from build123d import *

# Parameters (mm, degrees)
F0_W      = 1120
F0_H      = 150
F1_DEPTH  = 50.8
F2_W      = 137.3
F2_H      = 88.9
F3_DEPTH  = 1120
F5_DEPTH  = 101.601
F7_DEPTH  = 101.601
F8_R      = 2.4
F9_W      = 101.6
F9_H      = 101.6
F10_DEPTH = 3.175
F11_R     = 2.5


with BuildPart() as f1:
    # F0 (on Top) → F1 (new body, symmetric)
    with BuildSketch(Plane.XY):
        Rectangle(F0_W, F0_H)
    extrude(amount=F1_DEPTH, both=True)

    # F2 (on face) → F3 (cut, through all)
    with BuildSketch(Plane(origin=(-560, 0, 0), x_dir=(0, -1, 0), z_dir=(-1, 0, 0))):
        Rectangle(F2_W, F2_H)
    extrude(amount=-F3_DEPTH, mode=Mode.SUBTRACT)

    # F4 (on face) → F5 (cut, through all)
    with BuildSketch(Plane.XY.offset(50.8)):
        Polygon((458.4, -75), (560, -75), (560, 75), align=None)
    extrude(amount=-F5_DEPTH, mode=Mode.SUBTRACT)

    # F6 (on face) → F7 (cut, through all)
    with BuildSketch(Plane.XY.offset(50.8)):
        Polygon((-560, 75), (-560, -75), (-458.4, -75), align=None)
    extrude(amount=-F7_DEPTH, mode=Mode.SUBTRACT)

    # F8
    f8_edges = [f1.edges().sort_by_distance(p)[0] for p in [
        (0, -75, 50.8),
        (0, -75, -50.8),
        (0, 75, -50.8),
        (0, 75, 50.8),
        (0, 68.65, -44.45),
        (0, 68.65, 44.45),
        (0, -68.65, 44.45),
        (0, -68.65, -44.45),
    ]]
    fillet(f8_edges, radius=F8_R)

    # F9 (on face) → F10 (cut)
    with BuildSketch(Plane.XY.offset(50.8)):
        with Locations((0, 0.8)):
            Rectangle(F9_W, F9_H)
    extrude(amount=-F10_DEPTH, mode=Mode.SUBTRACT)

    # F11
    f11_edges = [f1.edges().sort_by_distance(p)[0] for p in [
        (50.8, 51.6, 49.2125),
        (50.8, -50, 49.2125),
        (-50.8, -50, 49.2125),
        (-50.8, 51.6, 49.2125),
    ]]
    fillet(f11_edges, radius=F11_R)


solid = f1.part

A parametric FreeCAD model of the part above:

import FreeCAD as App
import Part
import Sketcher
Q = App.Units.Quantity


def edges_at(feature, points):
    """Names of the edges that pass closest to the given points."""
    edges = feature.Shape.Edges
    near = lambda p: min(range(len(edges)), key=lambda i: edges[i].distToShape(Part.Vertex(*p))[0])
    return sorted({f"Edge{near(p) + 1}" for p in points})

doc = App.newDocument("Part")
params = doc.addObject("Spreadsheet::Sheet", "Params")
for row, (alias, value) in enumerate([
    ("sketch1_width", "1120 mm"),
    ("sketch1_height", "150 mm"),
    ("pad1_length", "101.6 mm"),
    ("sketch2_width", "137.3 mm"),
    ("sketch2_height", "88.9 mm"),
    ("sketch3_height", "150 mm"),
    ("sketch3_width", "101.6 mm"),
    ("sketch4_height", "150 mm"),
    ("sketch4_width", "101.6 mm"),
    ("fillet_radius", "2.4 mm"),
    ("sketch5_width", "101.6 mm"),
    ("pocket4_length", "3.175 mm"),
    ("fillet2_radius", "2.5 mm"),
], start=1):
    params.set(f"A{row}", alias)
    params.set(f"B{row}", "=" + value)
    params.setAlias(f"B{row}", alias)

body = doc.addObject("PartDesign::Body", "Body")

# Sketch on XY plane
sketch1 = body.newObject("Sketcher::SketchObject", "Sketch")
sketch1.AttachmentSupport = (doc.getObject("XY_Plane"), [""])
sketch1.MapMode = "FlatFace"
sketch1.addGeometry(Part.LineSegment(App.Vector(-560, 75, 0), App.Vector(-560, -75, 0)), False)
sketch1.addGeometry(Part.LineSegment(App.Vector(-560, -75, 0), App.Vector(560, -75, 0)), False)
sketch1.addGeometry(Part.LineSegment(App.Vector(560, -75, 0), App.Vector(560, 75, 0)), False)
sketch1.addGeometry(Part.LineSegment(App.Vector(560, 75, 0), App.Vector(-560, 75, 0)), False)
sketch1.addConstraint(Sketcher.Constraint("Coincident", 0, 2, 1, 1))
sketch1.addConstraint(Sketcher.Constraint("Coincident", 1, 2, 2, 1))
sketch1.addConstraint(Sketcher.Constraint("Coincident", 2, 2, 3, 1))
sketch1.addConstraint(Sketcher.Constraint("Coincident", 3, 2, 0, 1))
sketch1.addConstraint(Sketcher.Constraint("Vertical", 0))
sketch1.addConstraint(Sketcher.Constraint("Horizontal", 1))
sketch1.addConstraint(Sketcher.Constraint("Vertical", 2))
sketch1.addConstraint(Sketcher.Constraint("Horizontal", 3))
sketch1.addConstraint(Sketcher.Constraint("Symmetric", 0, 2, 2, 2, -1, 1))
sketch1.addConstraint(Sketcher.Constraint("DistanceX", 1, 1, 1, 2, Q("1120 mm")))
sketch1.addConstraint(Sketcher.Constraint("DistanceY", 0, 2, 0, 1, Q("150 mm")))
sketch1.setExpression("Constraints[9]", "Params.sketch1_width")
sketch1.setExpression("Constraints[10]", "Params.sketch1_height")
pad1 = body.newObject("PartDesign::Pad", "Pad")
pad1.Profile = sketch1
pad1.setExpression("Length", "Params.pad1_length")
pad1.Midplane = True

# Sketch on YZ plane
sketch2 = body.newObject("Sketcher::SketchObject", "Sketch001")
sketch2.AttachmentSupport = (doc.getObject("YZ_Plane"), [""])
sketch2.MapMode = "FlatFace"
sketch2.AttachmentOffset = App.Placement(App.Vector(0, 0, -560), App.Rotation())
sketch2.addGeometry(Part.LineSegment(App.Vector(69, 44, 0), App.Vector(69, -44, 0)), False)
sketch2.addGeometry(Part.LineSegment(App.Vector(69, -44, 0), App.Vector(-69, -44, 0)), False)
sketch2.addGeometry(Part.LineSegment(App.Vector(-69, -44, 0), App.Vector(-69, 44, 0)), False)
sketch2.addGeometry(Part.LineSegment(App.Vector(-69, 44, 0), App.Vector(69, 44, 0)), False)
sketch2.addConstraint(Sketcher.Constraint("Coincident", 0, 2, 1, 1))
sketch2.addConstraint(Sketcher.Constraint("Coincident", 1, 2, 2, 1))
sketch2.addConstraint(Sketcher.Constraint("Coincident", 2, 2, 3, 1))
sketch2.addConstraint(Sketcher.Constraint("Coincident", 3, 2, 0, 1))
sketch2.addConstraint(Sketcher.Constraint("Vertical", 0))
sketch2.addConstraint(Sketcher.Constraint("Horizontal", 1))
sketch2.addConstraint(Sketcher.Constraint("Vertical", 2))
sketch2.addConstraint(Sketcher.Constraint("Horizontal", 3))
sketch2.addConstraint(Sketcher.Constraint("Symmetric", 0, 2, 2, 2, -1, 1))
sketch2.addConstraint(Sketcher.Constraint("DistanceX", 1, 2, 1, 1, Q("137.3 mm")))
sketch2.addConstraint(Sketcher.Constraint("DistanceY", 0, 2, 0, 1, Q("88.9 mm")))
sketch2.setExpression("Constraints[9]", "Params.sketch2_width")
sketch2.setExpression("Constraints[10]", "Params.sketch2_height")
pocket1 = body.newObject("PartDesign::Pocket", "Pocket")
pocket1.Profile = sketch2
pocket1.Type = "ThroughAll"
pocket1.Reversed = True

# Sketch on XY plane
sketch3 = body.newObject("Sketcher::SketchObject", "Sketch002")
sketch3.AttachmentSupport = (doc.getObject("XY_Plane"), [""])
sketch3.MapMode = "FlatFace"
sketch3.AttachmentOffset = App.Placement(App.Vector(0, 0, 50.8), App.Rotation())
sketch3.addGeometry(Part.LineSegment(App.Vector(458, -75, 0), App.Vector(560, -75, 0)), False)
sketch3.addGeometry(Part.LineSegment(App.Vector(560, -75, 0), App.Vector(560, 75, 0)), False)
sketch3.addGeometry(Part.LineSegment(App.Vector(560, 75, 0), App.Vector(458, -75, 0)), False)
sketch3.addConstraint(Sketcher.Constraint("Coincident", 0, 2, 1, 1))
sketch3.addConstraint(Sketcher.Constraint("Coincident", 1, 2, 2, 1))
sketch3.addConstraint(Sketcher.Constraint("Coincident", 2, 2, 0, 1))
sketch3.addConstraint(Sketcher.Constraint("Horizontal", 0))
sketch3.addConstraint(Sketcher.Constraint("Vertical", 1))
sketch3.addConstraint(Sketcher.Constraint("DistanceY", 1, 1, 1, 2, Q("150 mm")))
sketch3.addConstraint(Sketcher.Constraint("DistanceX", 0, 1, 0, 2, Q("101.6 mm")))
sketch3.addConstraint(Sketcher.Constraint("DistanceX", -1, 1, 0, 2, Q("560 mm")))
sketch3.addConstraint(Sketcher.Constraint("DistanceY", 0, 2, -1, 1, Q("75 mm")))
sketch3.setExpression("Constraints[5]", "Params.sketch3_height")
sketch3.setExpression("Constraints[6]", "Params.sketch3_width")
pocket2 = body.newObject("PartDesign::Pocket", "Pocket001")
pocket2.Profile = sketch3
pocket2.Type = "ThroughAll"

# Sketch on XY plane
sketch4 = body.newObject("Sketcher::SketchObject", "Sketch003")
sketch4.AttachmentSupport = (doc.getObject("XY_Plane"), [""])
sketch4.MapMode = "FlatFace"
sketch4.AttachmentOffset = App.Placement(App.Vector(0, 0, 50.8), App.Rotation())
sketch4.addGeometry(Part.LineSegment(App.Vector(-560, 75, 0), App.Vector(-560, -75, 0)), False)
sketch4.addGeometry(Part.LineSegment(App.Vector(-560, -75, 0), App.Vector(-458, -75, 0)), False)
sketch4.addGeometry(Part.LineSegment(App.Vector(-458, -75, 0), App.Vector(-560, 75, 0)), False)
sketch4.addConstraint(Sketcher.Constraint("Coincident", 0, 2, 1, 1))
sketch4.addConstraint(Sketcher.Constraint("Coincident", 1, 2, 2, 1))
sketch4.addConstraint(Sketcher.Constraint("Coincident", 2, 2, 0, 1))
sketch4.addConstraint(Sketcher.Constraint("Vertical", 0))
sketch4.addConstraint(Sketcher.Constraint("Horizontal", 1))
sketch4.addConstraint(Sketcher.Constraint("DistanceY", 0, 2, 0, 1, Q("150 mm")))
sketch4.addConstraint(Sketcher.Constraint("DistanceX", 1, 1, 1, 2, Q("101.6 mm")))
sketch4.addConstraint(Sketcher.Constraint("DistanceX", 0, 2, -1, 1, Q("560 mm")))
sketch4.addConstraint(Sketcher.Constraint("DistanceY", 0, 2, -1, 1, Q("75 mm")))
sketch4.setExpression("Constraints[5]", "Params.sketch4_height")
sketch4.setExpression("Constraints[6]", "Params.sketch4_width")
pocket3 = body.newObject("PartDesign::Pocket", "Pocket002")
pocket3.Profile = sketch4
pocket3.Type = "ThroughAll"
doc.recompute()

fillet = body.newObject("PartDesign::Fillet", "Fillet")
fillet.Base = (pocket3, edges_at(pocket3, [
    (0, -75, 50.8),
    (0, -75, -50.8),
    (0, 75, -50.8),
    (0, 75, 50.8),
    (0, 68.65, -44.45),
    (0, 68.65, 44.45),
    (0, -68.65, 44.45),
    (0, -68.65, -44.45),
]))
fillet.setExpression("Radius", "Params.fillet_radius")

# Sketch on XY plane
sketch5 = body.newObject("Sketcher::SketchObject", "Sketch004")
sketch5.AttachmentSupport = (doc.getObject("XY_Plane"), [""])
sketch5.MapMode = "FlatFace"
sketch5.AttachmentOffset = App.Placement(App.Vector(0, 0, 50.8), App.Rotation())
sketch5.addGeometry(Part.LineSegment(App.Vector(-51, 52, 0), App.Vector(-51, -50, 0)), False)
sketch5.addGeometry(Part.LineSegment(App.Vector(-51, -50, 0), App.Vector(51, -50, 0)), False)
sketch5.addGeometry(Part.LineSegment(App.Vector(51, -50, 0), App.Vector(51, 52, 0)), False)
sketch5.addGeometry(Part.LineSegment(App.Vector(51, 52, 0), App.Vector(-51, 52, 0)), False)
sketch5.addConstraint(Sketcher.Constraint("Coincident", 0, 2, 1, 1))
sketch5.addConstraint(Sketcher.Constraint("Coincident", 1, 2, 2, 1))
sketch5.addConstraint(Sketcher.Constraint("Coincident", 2, 2, 3, 1))
sketch5.addConstraint(Sketcher.Constraint("Coincident", 3, 2, 0, 1))
sketch5.addConstraint(Sketcher.Constraint("Vertical", 0))
sketch5.addConstraint(Sketcher.Constraint("Horizontal", 1))
sketch5.addConstraint(Sketcher.Constraint("Vertical", 2))
sketch5.addConstraint(Sketcher.Constraint("Horizontal", 3))
sketch5.addConstraint(Sketcher.Constraint("Equal", 3, 0))
sketch5.addConstraint(Sketcher.Constraint("DistanceX", 1, 1, 1, 2, Q("101.6 mm")))
sketch5.addConstraint(Sketcher.Constraint("DistanceY", 0, 2, -1, 1, Q("50 mm")))
sketch5.addConstraint(Sketcher.Constraint("DistanceX", 0, 2, -1, 1, Q("50.8 mm")))
sketch5.setExpression("Constraints[9]", "Params.sketch5_width")
pocket4 = body.newObject("PartDesign::Pocket", "Pocket003")
pocket4.Profile = sketch5
pocket4.setExpression("Length", "Params.pocket4_length")
doc.recompute()

fillet2 = body.newObject("PartDesign::Fillet", "Fillet001")
fillet2.Base = (pocket4, edges_at(pocket4, [
    (50.8, 51.6, 49.212),
    (50.8, -50, 49.212),
    (-50.8, -50, 49.212),
    (-50.8, 51.6, 49.212),
]))
fillet2.setExpression("Radius", "Params.fillet2_radius")

doc.recompute()
